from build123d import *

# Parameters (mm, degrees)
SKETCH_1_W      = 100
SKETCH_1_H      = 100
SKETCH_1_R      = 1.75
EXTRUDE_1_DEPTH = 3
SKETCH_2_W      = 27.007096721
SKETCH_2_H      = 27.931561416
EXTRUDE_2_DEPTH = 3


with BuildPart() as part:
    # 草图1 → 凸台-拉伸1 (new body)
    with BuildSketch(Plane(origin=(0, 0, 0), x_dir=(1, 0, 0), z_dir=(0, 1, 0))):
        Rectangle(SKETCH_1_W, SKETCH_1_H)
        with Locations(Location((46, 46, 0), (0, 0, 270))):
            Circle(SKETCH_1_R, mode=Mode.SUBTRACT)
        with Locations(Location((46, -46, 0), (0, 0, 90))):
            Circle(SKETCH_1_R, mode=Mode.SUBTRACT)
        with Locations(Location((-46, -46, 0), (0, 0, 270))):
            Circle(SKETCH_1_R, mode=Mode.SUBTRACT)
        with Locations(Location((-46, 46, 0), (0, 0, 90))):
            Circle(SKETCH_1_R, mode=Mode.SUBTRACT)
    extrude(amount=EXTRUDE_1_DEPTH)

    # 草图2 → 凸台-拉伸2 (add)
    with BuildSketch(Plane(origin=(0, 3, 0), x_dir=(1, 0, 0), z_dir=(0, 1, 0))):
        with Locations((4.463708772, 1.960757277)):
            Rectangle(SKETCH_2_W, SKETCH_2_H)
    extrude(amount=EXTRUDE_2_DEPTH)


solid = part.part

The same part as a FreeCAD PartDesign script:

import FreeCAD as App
import Part
import Sketcher

V = App.Vector

doc = App.newDocument("Part")
params = doc.addObject("Spreadsheet::Sheet", "Params")
for row, (alias, value) in enumerate([
    ("sketch1_diameter", "3.5 mm"),
    ("sketch1_width", "100 mm"),
    ("pad1_length", "3 mm"),
    ("pad2_length", "3 mm"),
], start=1):
    params.set(f"A{row}", alias)
    params.set(f"B{row}", "=" + value)
    params.setAlias(f"B{row}", alias)

body = doc.addObject("PartDesign::Body", "Body")

# Sketch on XZ plane
sketch1 = body.newObject("Sketcher::SketchObject", "Sketch")
sketch1.AttachmentSupport = (doc.getObject("XZ_Plane"), [""])
sketch1.MapMode = "FlatFace"
sketch1.addGeometry([
    Part.LineSegment(V(-50, -50, 0), V(-50, 50, 0)),  # 0
    Part.LineSegment(V(-50, 50, 0), V(50, 50, 0)),  # 1
    Part.LineSegment(V(50, 50, 0), V(50, -50, 0)),  # 2
    Part.LineSegment(V(50, -50, 0), V(-50, -50, 0)),  # 3
    Part.Circle(V(-46, 46, 0), V(0, 0, 1), 1.8),  # 4
    Part.Circle(V(46, 46, 0), V(0, 0, 1), 1.8),  # 5
    Part.Circle(V(-46, -46, 0), V(0, 0, 1), 1.8),  # 6
    Part.Circle(V(46, -46, 0), V(0, 0, 1), 1.8),  # 7
], False)
sketch1.addConstraint([
    Sketcher.Constraint("Coincident", 0, 2, 1, 1),
    Sketcher.Constraint("Coincident", 1, 2, 2, 1),
    Sketcher.Constraint("Coincident", 2, 2, 3, 1),
    Sketcher.Constraint("Coincident", 3, 2, 0, 1),
    Sketcher.Constraint("Vertical", 0),
    Sketcher.Constraint("Horizontal", 1),
    Sketcher.Constraint("Vertical", 2),
    Sketcher.Constraint("Horizontal", 3),
    Sketcher.Constraint("Equal", 4, 5),
    Sketcher.Constraint("Equal", 5, 6),
    Sketcher.Constraint("Equal", 6, 7),
    Sketcher.Constraint("Symmetric", 5, 3, 6, 3, -1, 1),
    Sketcher.Constraint("Symmetric", 4, 3, 7, 3, -1, 1),
    Sketcher.Constraint("Symmetric", 0, 2, 2, 2, -1, 1),
    Sketcher.Constraint("Symmetric", 4, 3, 5, 3, -2),
    Sketcher.Constraint("Equal", 3, 0),
    Sketcher.Constraint("Diameter", 4, 3.5),
    Sketcher.Constraint("DistanceX", 1, 1, 1, 2, 100.0),
    Sketcher.Constraint("DistanceX", 4, 3, -1, 1, 46.0),
    Sketcher.Constraint("DistanceY", -1, 1, 4, 3, 46.0),
])
sketch1.setExpression("Constraints[16]", "Params.sketch1_diameter")
sketch1.setExpression("Constraints[17]", "Params.sketch1_width")
pad1 = body.newObject("PartDesign::Pad", "Pad")
pad1.Profile = sketch1
pad1.setExpression("Length", "Params.pad1_length")
pad1.Reversed = True

# Sketch on XZ plane
sketch2 = body.newObject("Sketcher::SketchObject", "Sketch001")
sketch2.AttachmentSupport = (doc.getObject("XZ_Plane"), [""])
sketch2.MapMode = "FlatFace"
sketch2.AttachmentOffset = App.Placement(V(0, 0, -3), App.Rotation())
sketch2.addGeometry([
    Part.LineSegment(V(-9, -16, 0), V(-9, 12, 0)),
    Part.LineSegment(V(-9, 12, 0), V(18, 12, 0)),
    Part.LineSegment(V(18, 12, 0), V(18, -16, 0)),
    Part.LineSegment(V(18, -16, 0), V(-9, -16, 0)),
], False)
sketch2.addConstraint([
    Sketcher.Constraint("Coincident", 0, 2, 1, 1),
    Sketcher.Constraint("Coincident", 1, 2, 2, 1),
    Sketcher.Constraint("Coincident", 2, 2, 3, 1),
    Sketcher.Constraint("Coincident", 3, 2, 0, 1),
    Sketcher.Constraint("Vertical", 0),
    Sketcher.Constraint("Horizontal", 1),
    Sketcher.Constraint("Vertical", 2),
    Sketcher.Constraint("Horizontal", 3),
    Sketcher.Constraint("DistanceY", 0, 1, 0, 2, 27.931561),
    Sketcher.Constraint("DistanceX", 1, 1, 1, 2, 27.007097),
    Sketcher.Constraint("DistanceX", 0, 2, -1, 1, 9.03984),
    Sketcher.Constraint("DistanceY", -1, 1, 0, 2, 12.005023),
])
pad2 = body.newObject("PartDesign::Pad", "Pad001")
pad2.Profile = sketch2
pad2.setExpression("Length", "Params.pad2_length")
pad2.Reversed = True

doc.recompute()
